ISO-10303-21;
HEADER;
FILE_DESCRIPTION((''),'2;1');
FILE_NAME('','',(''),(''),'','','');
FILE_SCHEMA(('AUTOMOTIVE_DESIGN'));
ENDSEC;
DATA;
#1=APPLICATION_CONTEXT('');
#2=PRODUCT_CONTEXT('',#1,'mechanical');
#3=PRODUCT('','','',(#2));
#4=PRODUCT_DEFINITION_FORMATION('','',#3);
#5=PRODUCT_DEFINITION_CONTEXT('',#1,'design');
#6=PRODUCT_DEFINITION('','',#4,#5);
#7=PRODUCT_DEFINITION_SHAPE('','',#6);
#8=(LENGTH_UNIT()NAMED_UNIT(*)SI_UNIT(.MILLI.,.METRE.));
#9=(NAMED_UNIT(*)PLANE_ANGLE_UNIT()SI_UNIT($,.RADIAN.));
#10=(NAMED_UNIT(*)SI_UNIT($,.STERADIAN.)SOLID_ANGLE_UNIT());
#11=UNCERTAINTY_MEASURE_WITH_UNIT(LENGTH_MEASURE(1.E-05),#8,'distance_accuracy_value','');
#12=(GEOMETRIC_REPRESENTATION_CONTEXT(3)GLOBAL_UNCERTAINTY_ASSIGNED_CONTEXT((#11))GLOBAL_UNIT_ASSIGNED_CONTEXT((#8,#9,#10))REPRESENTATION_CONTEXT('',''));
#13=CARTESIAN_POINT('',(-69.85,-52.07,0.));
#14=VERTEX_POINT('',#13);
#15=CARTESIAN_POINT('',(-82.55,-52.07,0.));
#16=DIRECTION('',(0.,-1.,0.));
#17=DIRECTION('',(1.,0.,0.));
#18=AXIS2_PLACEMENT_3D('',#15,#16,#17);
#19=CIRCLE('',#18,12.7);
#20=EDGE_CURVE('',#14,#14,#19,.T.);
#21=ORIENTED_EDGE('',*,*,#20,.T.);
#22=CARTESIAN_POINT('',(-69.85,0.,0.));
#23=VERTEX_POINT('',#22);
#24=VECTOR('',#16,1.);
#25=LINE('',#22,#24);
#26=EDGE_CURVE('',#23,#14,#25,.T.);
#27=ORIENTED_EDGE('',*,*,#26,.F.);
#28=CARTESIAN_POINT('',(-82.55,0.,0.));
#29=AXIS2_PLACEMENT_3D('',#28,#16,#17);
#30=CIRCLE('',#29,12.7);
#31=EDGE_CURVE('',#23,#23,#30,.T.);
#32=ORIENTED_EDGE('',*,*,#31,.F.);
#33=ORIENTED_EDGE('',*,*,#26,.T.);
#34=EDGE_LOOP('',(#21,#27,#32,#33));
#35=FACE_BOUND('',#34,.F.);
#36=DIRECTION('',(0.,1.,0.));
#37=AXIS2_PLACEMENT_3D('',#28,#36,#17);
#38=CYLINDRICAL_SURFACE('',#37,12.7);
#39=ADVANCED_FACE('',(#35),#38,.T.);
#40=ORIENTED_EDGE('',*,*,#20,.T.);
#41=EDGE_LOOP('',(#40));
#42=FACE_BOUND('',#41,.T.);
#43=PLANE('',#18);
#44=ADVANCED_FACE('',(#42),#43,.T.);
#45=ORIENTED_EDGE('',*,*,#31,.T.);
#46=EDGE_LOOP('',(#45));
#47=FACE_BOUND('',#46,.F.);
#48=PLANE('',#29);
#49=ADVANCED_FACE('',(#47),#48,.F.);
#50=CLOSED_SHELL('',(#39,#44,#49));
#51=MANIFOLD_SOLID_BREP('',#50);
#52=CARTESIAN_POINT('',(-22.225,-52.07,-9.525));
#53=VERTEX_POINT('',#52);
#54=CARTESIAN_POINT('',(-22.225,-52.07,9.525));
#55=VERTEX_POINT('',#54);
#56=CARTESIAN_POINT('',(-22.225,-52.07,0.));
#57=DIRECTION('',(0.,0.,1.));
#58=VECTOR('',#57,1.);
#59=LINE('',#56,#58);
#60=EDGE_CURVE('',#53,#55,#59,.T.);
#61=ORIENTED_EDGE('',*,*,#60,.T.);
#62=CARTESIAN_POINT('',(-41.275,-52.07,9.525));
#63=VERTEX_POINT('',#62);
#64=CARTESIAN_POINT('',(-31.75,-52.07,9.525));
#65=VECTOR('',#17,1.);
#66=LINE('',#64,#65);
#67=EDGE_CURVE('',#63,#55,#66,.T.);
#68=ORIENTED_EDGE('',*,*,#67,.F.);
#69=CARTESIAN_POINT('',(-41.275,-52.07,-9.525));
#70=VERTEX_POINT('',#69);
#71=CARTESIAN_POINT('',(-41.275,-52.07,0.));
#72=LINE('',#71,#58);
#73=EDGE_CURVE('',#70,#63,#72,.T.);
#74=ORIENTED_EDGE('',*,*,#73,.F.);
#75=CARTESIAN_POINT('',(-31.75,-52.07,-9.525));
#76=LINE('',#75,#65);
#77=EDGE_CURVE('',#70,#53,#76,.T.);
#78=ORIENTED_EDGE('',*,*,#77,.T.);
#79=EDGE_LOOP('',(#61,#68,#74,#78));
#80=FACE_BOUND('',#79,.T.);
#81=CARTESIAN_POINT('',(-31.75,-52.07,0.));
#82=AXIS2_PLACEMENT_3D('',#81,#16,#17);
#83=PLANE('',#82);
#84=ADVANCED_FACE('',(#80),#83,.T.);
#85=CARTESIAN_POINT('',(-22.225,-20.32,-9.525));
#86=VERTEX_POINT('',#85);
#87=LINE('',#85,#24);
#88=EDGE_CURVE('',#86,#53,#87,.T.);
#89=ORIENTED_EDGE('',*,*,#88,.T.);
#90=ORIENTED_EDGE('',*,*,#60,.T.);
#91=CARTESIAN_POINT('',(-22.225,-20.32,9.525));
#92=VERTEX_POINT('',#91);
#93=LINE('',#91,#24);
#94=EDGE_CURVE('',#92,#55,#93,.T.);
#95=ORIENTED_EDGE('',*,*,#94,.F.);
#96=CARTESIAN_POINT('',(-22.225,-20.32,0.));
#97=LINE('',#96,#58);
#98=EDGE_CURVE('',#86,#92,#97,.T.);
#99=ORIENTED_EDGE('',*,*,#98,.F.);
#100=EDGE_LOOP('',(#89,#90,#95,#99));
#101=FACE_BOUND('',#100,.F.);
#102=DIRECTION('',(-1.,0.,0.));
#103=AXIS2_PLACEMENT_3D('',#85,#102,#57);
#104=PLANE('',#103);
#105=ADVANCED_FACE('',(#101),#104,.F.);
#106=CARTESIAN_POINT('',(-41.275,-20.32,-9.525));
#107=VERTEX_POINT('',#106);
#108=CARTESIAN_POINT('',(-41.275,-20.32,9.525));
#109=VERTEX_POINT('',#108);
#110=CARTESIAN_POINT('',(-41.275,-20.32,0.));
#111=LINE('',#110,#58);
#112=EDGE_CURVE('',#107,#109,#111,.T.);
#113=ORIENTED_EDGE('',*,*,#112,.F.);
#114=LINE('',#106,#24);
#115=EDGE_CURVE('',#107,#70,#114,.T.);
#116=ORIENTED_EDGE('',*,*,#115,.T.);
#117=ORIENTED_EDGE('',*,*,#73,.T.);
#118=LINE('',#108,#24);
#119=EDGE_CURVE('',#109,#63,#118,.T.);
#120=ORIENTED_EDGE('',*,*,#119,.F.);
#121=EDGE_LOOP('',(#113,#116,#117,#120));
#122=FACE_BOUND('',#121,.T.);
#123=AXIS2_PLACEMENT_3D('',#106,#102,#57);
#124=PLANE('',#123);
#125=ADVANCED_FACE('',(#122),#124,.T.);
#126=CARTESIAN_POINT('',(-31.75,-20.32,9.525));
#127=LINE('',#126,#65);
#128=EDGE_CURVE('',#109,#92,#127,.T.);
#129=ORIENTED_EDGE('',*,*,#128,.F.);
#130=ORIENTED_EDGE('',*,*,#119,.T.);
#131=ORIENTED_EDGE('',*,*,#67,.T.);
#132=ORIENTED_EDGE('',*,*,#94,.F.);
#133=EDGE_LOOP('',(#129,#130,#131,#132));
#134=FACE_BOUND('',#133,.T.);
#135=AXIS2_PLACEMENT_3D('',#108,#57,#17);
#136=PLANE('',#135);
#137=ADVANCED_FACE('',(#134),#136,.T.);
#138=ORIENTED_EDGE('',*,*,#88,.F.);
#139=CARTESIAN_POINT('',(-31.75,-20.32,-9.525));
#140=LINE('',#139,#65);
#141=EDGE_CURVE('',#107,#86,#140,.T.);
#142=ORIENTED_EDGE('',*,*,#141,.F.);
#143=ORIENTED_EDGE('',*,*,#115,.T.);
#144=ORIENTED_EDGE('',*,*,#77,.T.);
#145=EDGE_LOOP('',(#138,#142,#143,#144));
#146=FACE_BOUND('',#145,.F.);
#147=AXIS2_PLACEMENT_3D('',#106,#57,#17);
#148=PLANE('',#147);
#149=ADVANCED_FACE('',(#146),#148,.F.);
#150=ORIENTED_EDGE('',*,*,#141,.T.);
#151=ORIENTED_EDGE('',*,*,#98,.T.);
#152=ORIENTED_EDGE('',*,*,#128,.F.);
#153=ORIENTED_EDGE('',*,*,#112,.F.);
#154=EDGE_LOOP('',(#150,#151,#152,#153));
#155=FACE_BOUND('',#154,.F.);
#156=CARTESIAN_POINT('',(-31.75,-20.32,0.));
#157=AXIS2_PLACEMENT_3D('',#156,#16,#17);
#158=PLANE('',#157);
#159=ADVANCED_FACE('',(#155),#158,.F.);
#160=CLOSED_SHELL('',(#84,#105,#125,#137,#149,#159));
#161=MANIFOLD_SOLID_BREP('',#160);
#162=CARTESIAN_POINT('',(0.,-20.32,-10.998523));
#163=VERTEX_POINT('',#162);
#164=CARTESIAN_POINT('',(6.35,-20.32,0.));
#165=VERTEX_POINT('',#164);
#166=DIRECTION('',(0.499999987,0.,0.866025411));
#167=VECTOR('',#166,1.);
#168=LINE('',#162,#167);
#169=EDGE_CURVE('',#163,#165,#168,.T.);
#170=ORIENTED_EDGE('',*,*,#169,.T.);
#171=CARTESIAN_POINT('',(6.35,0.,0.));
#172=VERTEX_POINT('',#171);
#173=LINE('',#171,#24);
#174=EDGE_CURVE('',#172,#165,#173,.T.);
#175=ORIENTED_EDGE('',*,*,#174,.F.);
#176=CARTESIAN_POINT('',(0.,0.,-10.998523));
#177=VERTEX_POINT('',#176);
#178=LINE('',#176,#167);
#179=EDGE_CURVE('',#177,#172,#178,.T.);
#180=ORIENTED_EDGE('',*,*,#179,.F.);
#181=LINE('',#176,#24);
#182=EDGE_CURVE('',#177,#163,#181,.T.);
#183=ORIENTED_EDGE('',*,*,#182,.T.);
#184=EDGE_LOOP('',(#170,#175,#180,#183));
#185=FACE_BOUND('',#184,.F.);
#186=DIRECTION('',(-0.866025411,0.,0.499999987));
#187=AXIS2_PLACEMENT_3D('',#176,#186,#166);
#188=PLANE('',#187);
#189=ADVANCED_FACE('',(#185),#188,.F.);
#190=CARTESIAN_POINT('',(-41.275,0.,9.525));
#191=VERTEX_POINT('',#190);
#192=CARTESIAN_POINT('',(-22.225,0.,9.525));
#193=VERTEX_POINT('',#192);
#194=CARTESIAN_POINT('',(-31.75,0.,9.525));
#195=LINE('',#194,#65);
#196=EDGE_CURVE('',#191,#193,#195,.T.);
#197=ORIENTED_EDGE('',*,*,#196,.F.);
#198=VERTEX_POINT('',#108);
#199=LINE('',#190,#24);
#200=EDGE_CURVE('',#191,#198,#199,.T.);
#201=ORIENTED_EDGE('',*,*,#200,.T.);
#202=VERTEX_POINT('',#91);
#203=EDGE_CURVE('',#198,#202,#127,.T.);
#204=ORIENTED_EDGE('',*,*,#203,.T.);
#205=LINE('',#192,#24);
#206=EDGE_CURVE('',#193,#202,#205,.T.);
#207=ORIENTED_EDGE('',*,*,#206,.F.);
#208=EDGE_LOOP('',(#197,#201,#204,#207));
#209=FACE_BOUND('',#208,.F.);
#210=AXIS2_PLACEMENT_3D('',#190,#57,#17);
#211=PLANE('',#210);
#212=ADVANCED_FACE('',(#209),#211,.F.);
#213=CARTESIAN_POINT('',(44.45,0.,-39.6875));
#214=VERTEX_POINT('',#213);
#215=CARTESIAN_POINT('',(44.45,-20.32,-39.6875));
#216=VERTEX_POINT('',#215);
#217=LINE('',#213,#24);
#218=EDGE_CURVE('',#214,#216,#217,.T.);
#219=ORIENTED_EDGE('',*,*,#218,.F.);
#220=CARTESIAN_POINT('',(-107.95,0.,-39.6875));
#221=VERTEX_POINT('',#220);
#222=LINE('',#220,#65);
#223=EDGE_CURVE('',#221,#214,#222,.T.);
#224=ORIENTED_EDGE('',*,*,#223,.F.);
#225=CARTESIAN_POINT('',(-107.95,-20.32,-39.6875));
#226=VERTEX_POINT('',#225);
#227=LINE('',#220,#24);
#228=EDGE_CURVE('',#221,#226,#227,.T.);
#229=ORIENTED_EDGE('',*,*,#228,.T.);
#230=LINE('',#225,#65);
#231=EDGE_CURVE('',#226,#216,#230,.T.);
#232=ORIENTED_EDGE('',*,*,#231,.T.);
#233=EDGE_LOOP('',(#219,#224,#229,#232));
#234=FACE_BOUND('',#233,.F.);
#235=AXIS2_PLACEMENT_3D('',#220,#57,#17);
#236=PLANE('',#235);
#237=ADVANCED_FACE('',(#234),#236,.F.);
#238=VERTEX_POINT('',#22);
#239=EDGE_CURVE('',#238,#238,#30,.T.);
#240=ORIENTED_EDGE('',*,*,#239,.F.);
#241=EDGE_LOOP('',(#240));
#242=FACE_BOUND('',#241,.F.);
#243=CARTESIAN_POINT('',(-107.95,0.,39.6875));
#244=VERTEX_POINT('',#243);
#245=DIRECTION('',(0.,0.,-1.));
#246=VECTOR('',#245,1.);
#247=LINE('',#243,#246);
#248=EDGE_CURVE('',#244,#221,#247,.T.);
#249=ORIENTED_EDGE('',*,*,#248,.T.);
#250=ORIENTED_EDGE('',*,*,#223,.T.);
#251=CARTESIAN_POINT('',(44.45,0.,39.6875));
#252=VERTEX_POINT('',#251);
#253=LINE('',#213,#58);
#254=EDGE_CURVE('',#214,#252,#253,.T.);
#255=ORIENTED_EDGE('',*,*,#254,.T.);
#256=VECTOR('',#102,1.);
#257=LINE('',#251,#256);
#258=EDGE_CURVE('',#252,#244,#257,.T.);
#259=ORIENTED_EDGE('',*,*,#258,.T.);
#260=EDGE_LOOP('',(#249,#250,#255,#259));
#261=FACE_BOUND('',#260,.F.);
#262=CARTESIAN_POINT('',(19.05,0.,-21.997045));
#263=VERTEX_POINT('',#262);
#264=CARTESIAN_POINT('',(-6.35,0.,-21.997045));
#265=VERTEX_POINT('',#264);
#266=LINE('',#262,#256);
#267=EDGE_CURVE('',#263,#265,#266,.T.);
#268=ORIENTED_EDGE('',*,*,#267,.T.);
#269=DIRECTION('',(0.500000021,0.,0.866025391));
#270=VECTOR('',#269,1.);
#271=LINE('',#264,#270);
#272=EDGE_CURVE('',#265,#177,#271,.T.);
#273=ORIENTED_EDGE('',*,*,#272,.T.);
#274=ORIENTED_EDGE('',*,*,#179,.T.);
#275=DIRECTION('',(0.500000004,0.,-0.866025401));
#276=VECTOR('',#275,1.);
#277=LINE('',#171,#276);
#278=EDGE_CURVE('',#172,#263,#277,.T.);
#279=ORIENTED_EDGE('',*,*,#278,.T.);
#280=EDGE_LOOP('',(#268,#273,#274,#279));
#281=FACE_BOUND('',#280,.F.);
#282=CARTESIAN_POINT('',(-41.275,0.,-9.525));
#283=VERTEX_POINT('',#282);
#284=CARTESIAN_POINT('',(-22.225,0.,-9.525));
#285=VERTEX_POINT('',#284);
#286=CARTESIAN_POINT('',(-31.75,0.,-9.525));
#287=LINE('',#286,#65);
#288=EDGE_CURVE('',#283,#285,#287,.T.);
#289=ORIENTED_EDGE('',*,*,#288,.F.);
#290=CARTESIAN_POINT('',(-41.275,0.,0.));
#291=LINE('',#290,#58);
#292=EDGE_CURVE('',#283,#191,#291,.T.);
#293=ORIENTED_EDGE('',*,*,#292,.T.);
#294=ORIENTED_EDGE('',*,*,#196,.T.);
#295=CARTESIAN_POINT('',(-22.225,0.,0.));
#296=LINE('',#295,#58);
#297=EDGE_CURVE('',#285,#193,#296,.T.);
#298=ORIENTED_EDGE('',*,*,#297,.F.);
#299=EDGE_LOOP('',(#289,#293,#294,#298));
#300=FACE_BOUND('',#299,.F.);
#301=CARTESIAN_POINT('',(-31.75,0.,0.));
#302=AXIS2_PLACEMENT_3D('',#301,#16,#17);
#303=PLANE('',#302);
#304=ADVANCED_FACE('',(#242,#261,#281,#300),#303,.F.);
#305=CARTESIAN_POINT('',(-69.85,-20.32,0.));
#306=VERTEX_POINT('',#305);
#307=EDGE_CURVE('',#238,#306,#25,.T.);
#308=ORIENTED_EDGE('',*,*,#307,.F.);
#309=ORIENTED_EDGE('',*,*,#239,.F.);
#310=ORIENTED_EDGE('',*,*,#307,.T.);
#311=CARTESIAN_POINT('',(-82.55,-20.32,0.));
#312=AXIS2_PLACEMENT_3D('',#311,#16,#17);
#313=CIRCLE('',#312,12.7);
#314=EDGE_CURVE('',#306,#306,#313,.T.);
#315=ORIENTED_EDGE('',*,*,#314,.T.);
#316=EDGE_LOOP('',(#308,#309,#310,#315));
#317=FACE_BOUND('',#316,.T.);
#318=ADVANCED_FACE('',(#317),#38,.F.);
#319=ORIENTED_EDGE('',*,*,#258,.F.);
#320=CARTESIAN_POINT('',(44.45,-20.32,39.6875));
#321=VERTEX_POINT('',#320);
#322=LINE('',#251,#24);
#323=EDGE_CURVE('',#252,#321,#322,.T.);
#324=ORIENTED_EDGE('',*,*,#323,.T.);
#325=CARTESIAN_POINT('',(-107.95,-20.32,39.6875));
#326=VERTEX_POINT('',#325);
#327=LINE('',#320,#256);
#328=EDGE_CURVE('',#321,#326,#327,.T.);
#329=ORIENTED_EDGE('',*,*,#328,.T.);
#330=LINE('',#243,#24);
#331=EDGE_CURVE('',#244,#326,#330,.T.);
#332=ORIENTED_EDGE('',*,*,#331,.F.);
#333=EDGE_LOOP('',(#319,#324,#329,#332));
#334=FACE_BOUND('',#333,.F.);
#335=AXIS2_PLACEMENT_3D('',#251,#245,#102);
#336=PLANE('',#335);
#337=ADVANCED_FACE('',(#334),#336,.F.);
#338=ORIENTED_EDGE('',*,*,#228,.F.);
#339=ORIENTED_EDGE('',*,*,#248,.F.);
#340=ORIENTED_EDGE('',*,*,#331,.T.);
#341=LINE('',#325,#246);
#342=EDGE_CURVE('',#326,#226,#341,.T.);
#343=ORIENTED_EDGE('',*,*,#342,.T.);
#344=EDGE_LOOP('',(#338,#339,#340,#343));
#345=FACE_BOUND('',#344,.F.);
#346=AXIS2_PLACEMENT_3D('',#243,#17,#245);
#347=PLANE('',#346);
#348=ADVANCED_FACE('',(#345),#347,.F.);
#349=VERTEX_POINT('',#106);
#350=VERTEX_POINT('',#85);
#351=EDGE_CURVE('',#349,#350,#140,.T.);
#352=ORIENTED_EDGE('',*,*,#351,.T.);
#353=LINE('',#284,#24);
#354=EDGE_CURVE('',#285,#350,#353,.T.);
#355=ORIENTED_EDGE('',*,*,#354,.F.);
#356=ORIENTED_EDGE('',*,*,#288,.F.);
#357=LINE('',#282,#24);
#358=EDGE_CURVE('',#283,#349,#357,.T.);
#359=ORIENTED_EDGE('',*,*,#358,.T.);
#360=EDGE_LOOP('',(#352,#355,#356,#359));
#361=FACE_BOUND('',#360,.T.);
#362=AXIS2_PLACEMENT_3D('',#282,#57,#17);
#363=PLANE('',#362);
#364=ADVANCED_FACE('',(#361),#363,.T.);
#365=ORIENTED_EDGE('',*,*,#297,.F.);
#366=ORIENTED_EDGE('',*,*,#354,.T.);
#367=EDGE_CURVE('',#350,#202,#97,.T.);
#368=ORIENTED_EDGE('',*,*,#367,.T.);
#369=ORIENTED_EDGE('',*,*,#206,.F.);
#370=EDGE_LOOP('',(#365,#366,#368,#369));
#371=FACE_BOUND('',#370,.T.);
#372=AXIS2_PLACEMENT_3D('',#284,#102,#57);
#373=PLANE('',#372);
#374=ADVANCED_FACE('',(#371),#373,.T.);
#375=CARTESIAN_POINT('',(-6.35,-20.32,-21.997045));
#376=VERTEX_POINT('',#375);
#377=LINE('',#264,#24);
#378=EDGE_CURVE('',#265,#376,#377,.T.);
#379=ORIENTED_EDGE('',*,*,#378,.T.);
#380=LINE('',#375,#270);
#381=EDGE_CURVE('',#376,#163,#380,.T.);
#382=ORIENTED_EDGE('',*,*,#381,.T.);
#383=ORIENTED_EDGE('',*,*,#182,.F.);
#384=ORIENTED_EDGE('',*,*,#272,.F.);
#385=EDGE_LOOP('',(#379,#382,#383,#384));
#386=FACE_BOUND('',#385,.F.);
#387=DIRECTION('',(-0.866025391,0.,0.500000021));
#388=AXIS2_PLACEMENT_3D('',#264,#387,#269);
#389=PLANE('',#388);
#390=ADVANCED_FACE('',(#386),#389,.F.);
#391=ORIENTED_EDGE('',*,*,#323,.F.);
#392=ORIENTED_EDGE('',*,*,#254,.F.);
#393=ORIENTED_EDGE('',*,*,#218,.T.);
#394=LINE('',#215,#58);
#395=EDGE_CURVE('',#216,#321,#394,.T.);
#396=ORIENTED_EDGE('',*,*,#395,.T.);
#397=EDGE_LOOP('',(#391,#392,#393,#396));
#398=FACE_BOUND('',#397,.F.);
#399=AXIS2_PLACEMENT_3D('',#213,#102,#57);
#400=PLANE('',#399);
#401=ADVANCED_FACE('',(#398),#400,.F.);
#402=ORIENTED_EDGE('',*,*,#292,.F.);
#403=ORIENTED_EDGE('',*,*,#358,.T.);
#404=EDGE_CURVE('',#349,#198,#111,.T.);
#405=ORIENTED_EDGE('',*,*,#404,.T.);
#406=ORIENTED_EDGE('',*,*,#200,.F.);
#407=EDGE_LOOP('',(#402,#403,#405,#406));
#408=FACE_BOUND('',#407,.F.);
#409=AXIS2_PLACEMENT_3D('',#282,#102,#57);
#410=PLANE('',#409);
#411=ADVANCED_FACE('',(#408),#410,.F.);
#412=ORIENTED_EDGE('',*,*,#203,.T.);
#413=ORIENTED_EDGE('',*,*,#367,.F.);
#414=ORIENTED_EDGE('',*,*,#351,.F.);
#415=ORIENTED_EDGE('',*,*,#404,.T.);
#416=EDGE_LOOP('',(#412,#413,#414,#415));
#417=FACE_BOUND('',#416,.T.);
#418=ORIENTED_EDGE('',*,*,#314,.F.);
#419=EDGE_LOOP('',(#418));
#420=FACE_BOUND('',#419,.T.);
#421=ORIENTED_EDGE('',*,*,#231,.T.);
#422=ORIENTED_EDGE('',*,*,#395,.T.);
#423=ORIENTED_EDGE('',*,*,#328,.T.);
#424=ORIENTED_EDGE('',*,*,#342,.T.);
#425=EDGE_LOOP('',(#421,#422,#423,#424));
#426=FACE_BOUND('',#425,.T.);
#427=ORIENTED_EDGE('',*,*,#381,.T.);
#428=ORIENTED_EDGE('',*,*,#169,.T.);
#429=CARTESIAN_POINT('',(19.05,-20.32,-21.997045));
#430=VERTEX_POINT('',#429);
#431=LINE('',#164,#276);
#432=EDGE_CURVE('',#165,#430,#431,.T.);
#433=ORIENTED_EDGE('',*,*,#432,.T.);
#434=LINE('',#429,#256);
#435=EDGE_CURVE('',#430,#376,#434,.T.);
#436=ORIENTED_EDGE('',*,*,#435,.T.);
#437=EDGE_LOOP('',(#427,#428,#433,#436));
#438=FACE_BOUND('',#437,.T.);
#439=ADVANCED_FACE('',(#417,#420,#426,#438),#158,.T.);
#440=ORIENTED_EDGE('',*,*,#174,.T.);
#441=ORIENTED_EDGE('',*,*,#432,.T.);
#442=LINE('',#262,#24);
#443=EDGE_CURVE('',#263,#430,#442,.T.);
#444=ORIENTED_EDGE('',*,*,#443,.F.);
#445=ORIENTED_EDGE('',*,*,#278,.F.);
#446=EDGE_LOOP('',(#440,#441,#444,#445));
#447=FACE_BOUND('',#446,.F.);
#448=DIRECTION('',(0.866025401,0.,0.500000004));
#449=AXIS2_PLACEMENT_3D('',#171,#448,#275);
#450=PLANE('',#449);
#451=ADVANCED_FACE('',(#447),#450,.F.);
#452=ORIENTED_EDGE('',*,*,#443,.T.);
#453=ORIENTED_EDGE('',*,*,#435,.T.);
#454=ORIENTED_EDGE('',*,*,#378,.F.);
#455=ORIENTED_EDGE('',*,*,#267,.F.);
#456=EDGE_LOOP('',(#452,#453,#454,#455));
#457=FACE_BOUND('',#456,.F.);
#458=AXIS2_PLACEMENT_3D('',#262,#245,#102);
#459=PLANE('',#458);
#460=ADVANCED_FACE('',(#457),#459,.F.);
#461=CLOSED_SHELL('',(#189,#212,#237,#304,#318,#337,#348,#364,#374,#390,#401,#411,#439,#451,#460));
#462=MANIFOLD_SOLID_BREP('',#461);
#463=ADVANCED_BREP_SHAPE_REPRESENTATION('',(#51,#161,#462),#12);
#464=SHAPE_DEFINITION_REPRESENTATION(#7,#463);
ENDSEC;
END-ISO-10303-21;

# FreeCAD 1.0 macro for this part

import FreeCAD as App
import Part
import Sketcher
Q = App.Units.Quantity


def add_polygon(sketch, points):
    """Adds a closed chain of lines whose ends are joined by coincident constraints."""
    first, n = sketch.GeometryCount, len(points)
    for a, b in zip(points, points[1:] + points[:1]):
        sketch.addGeometry(Part.LineSegment(App.Vector(*a, 0), App.Vector(*b, 0)), False)
    for i in range(n):
        sketch.addConstraint(Sketcher.Constraint("Coincident", first + i, 2, first + (i + 1) % n, 1))

doc = App.newDocument("Part")
params = doc.addObject("Spreadsheet::Sheet", "Params")
for row, (alias, value) in enumerate([
    ("sketch1_diameter", "1 in"),
    ("sketch1_width", "6 in"),
    ("sketch1_width2", "1 in"),
    ("sketch1_length", "1 in"),
    ("sketch1_width3", "0.75 in"),
    ("pad1_length", "0.8 in"),
    ("sketch2_diameter", "1 in"),
    ("pad2_length", "2.05 in"),
    ("sketch3_width", "0.75 in"),
    ("pad3_length", "1.25 in"),
], start=1):
    params.set(f"A{row}", alias)
    params.set(f"B{row}", "=" + value)
    params.setAlias(f"B{row}", alias)

body = doc.addObject("PartDesign::Body", "Body")

sketch1 = doc.addObject("Sketcher::SketchObject", "Sketch")
body.addObject(sketch1)
sketch1.AttachmentSupport = (doc.XZ_Plane, [""])
sketch1.MapMode = "FlatFace"
add_polygon(sketch1, [(-108, 40), (-108, -40), (44, -40), (44, 40)])
add_polygon(sketch1, [(6, 0), (19, -22), (-6, -22), (0, -11)])
sketch1.addGeometry(Part.Circle(App.Vector(-83, 0, 0), App.Vector(0, 0, 1), 13), False)
add_polygon(sketch1, [(-22, -10), (-41, -10), (-41, 10), (-22, 10)])
sketch1.addConstraint(Sketcher.Constraint("Vertical", 0))
sketch1.addConstraint(Sketcher.Constraint("Horizontal", 1))
sketch1.addConstraint(Sketcher.Constraint("Vertical", 2))
sketch1.addConstraint(Sketcher.Constraint("Horizontal", 3))
sketch1.addConstraint(Sketcher.Constraint("Horizontal", 5))
sketch1.addConstraint(Sketcher.Constraint("Horizontal", 9))
sketch1.addConstraint(Sketcher.Constraint("Vertical", 10))
sketch1.addConstraint(Sketcher.Constraint("Horizontal", 11))
sketch1.addConstraint(Sketcher.Constraint("Vertical", 12))
sketch1.addConstraint(Sketcher.Constraint("PointOnObject", 8, 3, -1))
sketch1.addConstraint(Sketcher.Constraint("PointOnObject", 6, 2, -2))
sketch1.addConstraint(Sketcher.Constraint("PointOnObject", 7, 2, -1))
sketch1.addConstraint(Sketcher.Constraint("Parallel", 6, 7))
sketch1.addConstraint(Sketcher.Constraint("Equal", 11, 10))
sketch1.addConstraint(Sketcher.Constraint("Equal", 6, 7))
sketch1.addConstraint(Sketcher.Constraint("Diameter", 8, Q("1 in")))
sketch1.addConstraint(Sketcher.Constraint("DistanceX", 1, 1, 1, 2, Q("6 in")))
sketch1.addConstraint(Sketcher.Constraint("DistanceX", 5, 2, 5, 1, Q("1 in")))
sketch1.addConstraint(Sketcher.Constraint("Distance", 4, Q("1 in")))
sketch1.addConstraint(Sketcher.Constraint("Angle", 4, Q("-60 deg")))
sketch1.addConstraint(Sketcher.Constraint("DistanceX", 0, 2, 8, 3, Q("1 in")))
sketch1.addConstraint(Sketcher.Constraint("DistanceX", 4, 2, 1, 2, Q("1 in")))
sketch1.addConstraint(Sketcher.Constraint("DistanceX", 9, 2, 9, 1, Q("0.75 in")))
sketch1.addConstraint(Sketcher.Constraint("DistanceY", 0, 2, 0, 1, Q("3.125 in")))
sketch1.addConstraint(Sketcher.Constraint("DistanceY", 0, 2, -1, 1, Q("1.5625 in")))
sketch1.addConstraint(Sketcher.Constraint("DistanceX", 9, 2, -1, 1, Q("1.625 in")))
sketch1.addConstraint(Sketcher.Constraint("DistanceY", 9, 2, -1, 1, Q("0.375 in")))
sketch1.setExpression("Constraints[27]", "Params.sketch1_diameter")
sketch1.setExpression("Constraints[28]", "Params.sketch1_width")
sketch1.setExpression("Constraints[29]", "Params.sketch1_width2")
sketch1.setExpression("Constraints[30]", "Params.sketch1_length")
sketch1.setExpression("Constraints[34]", "Params.sketch1_width3")
pad1 = doc.addObject("PartDesign::Pad", "Pad")
body.addObject(pad1)
pad1.Profile = sketch1
pad1.setExpression("Length", "Params.pad1_length")
body2 = doc.addObject("PartDesign::Body", "Body001")

sketch2 = doc.addObject("Sketcher::SketchObject", "Sketch001")
body2.addObject(sketch2)
sketch2.AttachmentSupport = (doc.getObject("XZ_Plane001"), [""])
sketch2.MapMode = "FlatFace"
sketch2.addGeometry(Part.Circle(App.Vector(-83, 0, 0), App.Vector(0, 0, 1), 13), False)
sketch2.addConstraint(Sketcher.Constraint("PointOnObject", 0, 3, -1))
sketch2.addConstraint(Sketcher.Constraint("Diameter", 0, Q("1 in")))
sketch2.addConstraint(Sketcher.Constraint("DistanceX", 0, 3, -1, 1, Q("3.25 in")))
sketch2.setExpression("Constraints[1]", "Params.sketch2_diameter")
pad2 = doc.addObject("PartDesign::Pad", "Pad001")
body2.addObject(pad2)
pad2.Profile = sketch2
pad2.setExpression("Length", "Params.pad2_length")
body3 = doc.addObject("PartDesign::Body", "Body002")

sketch3 = doc.addObject("Sketcher::SketchObject", "Sketch002")
body3.addObject(sketch3)
sketch3.AttachmentSupport = (doc.getObject("XZ_Plane002"), [""])
sketch3.MapMode = "FlatFace"
sketch3.AttachmentOffset = App.Placement(App.Vector(0, 0, 0.8 * 25.4), App.Rotation())
add_polygon(sketch3, [(-41, 10), (-41, -10), (-22, -10), (-22, 10)])
sketch3.addConstraint(Sketcher.Constraint("Vertical", 0))
sketch3.addConstraint(Sketcher.Constraint("Horizontal", 1))
sketch3.addConstraint(Sketcher.Constraint("Vertical", 2))
sketch3.addConstraint(Sketcher.Constraint("Horizontal", 3))
sketch3.addConstraint(Sketcher.Constraint("Equal", 3, 0))
sketch3.addConstraint(Sketcher.Constraint("DistanceX", 1, 1, 1, 2, Q("0.75 in")))
sketch3.addConstraint(Sketcher.Constraint("DistanceX", 0, 2, -1, 1, Q("1.625 in")))
sketch3.addConstraint(Sketcher.Constraint("DistanceY", 0, 2, -1, 1, Q("0.375 in")))
sketch3.setExpression("Constraints[9]", "Params.sketch3_width")
pad3 = doc.addObject("PartDesign::Pad", "Pad002")
body3.addObject(pad3)
pad3.Profile = sketch3
pad3.setExpression("Length", "Params.pad3_length")

doc.recompute()
